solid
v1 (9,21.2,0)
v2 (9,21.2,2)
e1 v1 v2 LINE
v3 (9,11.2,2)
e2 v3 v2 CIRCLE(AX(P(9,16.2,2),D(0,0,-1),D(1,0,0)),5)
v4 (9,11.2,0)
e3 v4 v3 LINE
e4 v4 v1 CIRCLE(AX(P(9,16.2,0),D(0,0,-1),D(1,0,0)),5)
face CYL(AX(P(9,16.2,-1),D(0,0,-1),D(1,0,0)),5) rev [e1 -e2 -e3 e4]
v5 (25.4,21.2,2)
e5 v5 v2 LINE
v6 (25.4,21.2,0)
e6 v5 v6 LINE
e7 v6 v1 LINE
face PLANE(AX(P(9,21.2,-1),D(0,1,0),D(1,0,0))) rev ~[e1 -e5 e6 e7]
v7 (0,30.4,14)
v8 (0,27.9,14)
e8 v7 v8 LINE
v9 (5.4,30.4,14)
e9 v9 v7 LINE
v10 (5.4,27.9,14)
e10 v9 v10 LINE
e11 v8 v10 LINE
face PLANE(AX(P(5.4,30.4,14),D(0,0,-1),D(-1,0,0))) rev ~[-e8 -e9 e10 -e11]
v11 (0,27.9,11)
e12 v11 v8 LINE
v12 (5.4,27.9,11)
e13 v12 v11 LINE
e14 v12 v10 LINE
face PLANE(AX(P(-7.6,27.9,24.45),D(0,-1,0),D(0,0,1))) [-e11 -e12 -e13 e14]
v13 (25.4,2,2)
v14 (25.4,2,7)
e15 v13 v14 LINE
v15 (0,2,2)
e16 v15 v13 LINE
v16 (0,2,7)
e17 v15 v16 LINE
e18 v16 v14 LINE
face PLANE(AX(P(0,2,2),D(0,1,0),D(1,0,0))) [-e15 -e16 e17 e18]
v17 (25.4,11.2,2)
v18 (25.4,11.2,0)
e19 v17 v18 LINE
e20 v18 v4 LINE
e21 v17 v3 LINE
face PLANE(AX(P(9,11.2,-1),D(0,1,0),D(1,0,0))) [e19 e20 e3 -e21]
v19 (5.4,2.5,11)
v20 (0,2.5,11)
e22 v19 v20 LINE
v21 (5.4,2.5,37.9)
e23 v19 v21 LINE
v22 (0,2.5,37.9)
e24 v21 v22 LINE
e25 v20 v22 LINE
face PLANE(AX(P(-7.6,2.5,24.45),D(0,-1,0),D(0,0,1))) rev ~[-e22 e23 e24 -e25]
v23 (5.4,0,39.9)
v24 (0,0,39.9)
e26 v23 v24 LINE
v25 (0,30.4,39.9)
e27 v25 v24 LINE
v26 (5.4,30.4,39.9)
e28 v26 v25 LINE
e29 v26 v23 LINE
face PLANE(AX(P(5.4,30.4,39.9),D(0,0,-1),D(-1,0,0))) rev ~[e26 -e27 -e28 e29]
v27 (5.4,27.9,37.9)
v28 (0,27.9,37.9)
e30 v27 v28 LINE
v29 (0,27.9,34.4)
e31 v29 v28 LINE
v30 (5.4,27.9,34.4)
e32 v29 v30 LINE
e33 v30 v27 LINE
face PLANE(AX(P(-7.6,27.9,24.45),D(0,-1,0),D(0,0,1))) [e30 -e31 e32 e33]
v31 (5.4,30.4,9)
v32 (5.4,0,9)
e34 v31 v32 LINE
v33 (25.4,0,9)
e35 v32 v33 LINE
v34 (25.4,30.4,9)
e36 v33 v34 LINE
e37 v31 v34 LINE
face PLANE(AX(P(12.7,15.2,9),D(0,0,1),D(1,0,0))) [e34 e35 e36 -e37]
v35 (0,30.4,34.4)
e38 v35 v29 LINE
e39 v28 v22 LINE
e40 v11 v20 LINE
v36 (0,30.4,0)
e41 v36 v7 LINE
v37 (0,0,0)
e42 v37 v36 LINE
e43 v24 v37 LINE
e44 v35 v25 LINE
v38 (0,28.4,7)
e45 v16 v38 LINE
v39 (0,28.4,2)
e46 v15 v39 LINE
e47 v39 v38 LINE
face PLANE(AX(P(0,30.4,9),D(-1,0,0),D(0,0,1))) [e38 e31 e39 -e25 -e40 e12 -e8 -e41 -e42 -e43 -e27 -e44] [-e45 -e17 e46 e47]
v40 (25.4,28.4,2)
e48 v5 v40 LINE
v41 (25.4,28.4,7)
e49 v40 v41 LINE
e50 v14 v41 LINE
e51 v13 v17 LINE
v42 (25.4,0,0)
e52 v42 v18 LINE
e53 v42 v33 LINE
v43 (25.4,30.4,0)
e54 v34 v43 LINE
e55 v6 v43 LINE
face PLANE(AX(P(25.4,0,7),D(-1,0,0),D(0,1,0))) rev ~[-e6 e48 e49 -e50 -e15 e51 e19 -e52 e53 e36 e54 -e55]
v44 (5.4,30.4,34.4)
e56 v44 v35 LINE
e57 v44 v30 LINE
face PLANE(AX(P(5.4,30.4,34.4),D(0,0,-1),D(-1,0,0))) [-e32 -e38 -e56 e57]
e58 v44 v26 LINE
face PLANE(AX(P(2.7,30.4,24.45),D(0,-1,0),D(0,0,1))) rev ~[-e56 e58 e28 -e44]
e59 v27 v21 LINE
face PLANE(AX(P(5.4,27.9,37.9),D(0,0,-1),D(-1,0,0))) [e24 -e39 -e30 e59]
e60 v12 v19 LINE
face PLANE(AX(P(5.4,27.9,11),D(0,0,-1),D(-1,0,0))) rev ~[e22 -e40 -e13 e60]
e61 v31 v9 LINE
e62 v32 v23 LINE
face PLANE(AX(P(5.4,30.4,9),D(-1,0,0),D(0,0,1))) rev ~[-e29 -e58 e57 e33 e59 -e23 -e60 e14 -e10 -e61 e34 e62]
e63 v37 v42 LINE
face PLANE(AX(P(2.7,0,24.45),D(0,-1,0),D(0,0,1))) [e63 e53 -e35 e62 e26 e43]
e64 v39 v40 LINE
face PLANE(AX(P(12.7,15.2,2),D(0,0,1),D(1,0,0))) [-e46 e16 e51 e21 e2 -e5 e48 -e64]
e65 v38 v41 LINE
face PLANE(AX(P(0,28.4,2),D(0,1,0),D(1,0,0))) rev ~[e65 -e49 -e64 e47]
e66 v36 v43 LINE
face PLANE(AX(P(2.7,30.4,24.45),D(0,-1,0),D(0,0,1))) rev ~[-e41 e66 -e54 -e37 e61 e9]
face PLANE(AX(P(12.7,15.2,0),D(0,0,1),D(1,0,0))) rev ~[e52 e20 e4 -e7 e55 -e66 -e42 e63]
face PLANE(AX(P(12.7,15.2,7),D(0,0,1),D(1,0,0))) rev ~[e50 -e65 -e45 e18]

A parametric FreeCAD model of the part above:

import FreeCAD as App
import Part
import Sketcher
from FreeCAD import Vector

doc = App.newDocument("Part")
body = doc.addObject("PartDesign::Body", "Body")

# Sketch on XY plane
sketch1 = doc.addObject("Sketcher::SketchObject", "Sketch")
body.addObject(sketch1)
sketch1.AttachmentSupport = (doc.XY_Plane, [""])
sketch1.MapMode = "FlatFace"
sketch1.addGeometry(Part.LineSegment(Vector(5, 25, 0), Vector(5, 0, 0)), False)
sketch1.addGeometry(Part.LineSegment(Vector(5, 0, 0), Vector(25, 0, 0)), False)
sketch1.addGeometry(Part.LineSegment(Vector(25, 0, 0), Vector(25, 25, 0)), False)
sketch1.addGeometry(Part.LineSegment(Vector(25, 25, 0), Vector(5, 25, 0)), False)
sketch1.addConstraint(Sketcher.Constraint("Coincident", 0, 2, 1, 1))
sketch1.addConstraint(Sketcher.Constraint("Coincident", 1, 2, 2, 1))
sketch1.addConstraint(Sketcher.Constraint("Coincident", 2, 2, 3, 1))
sketch1.addConstraint(Sketcher.Constraint("Coincident", 3, 2, 0, 1))
sketch1.addConstraint(Sketcher.Constraint("Vertical", 0))
sketch1.addConstraint(Sketcher.Constraint("Horizontal", 1))
sketch1.addConstraint(Sketcher.Constraint("Vertical", 2))
sketch1.addConstraint(Sketcher.Constraint("Horizontal", 3))
sketch1.addConstraint(Sketcher.Constraint("PointOnObject", 0, 2, -1))
sketch1.addConstraint(Sketcher.Constraint("DistanceX", 1, 1, 1, 2, 20.4))
sketch1.addConstraint(Sketcher.Constraint("DistanceY", 0, 2, 0, 1, 25.4))
sketch1.addConstraint(Sketcher.Constraint("DistanceX", -1, 1, 0, 2, 5.0))
pad1 = doc.addObject("PartDesign::Pad", "Pad")
body.addObject(pad1)
pad1.Profile = sketch1
pad1.Length = 10
body2 = doc.addObject("PartDesign::Body", "Body001")

# Sketch on XY plane
sketch2 = doc.addObject("Sketcher::SketchObject", "Sketch001")
body2.addObject(sketch2)
sketch2.AttachmentSupport = (doc.getObject("XY_Plane001"), [""])
sketch2.MapMode = "FlatFace"
sketch2.AttachmentOffset = App.Placement(Vector(0, 0, 2.5), App.Rotation())
sketch2.addGeometry(Part.LineSegment(Vector(2, 26, 0), Vector(2, 0, 0)), False)
sketch2.addGeometry(Part.LineSegment(Vector(2, 0, 0), Vector(29, 0, 0)), False)
sketch2.addGeometry(Part.LineSegment(Vector(29, 0, 0), Vector(29, 26, 0)), False)
sketch2.addGeometry(Part.LineSegment(Vector(29, 26, 0), Vector(2, 26, 0)), False)
sketch2.addConstraint(Sketcher.Constraint("Coincident", 0, 2, 1, 1))
sketch2.addConstraint(Sketcher.Constraint("Coincident", 1, 2, 2, 1))
sketch2.addConstraint(Sketcher.Constraint("Coincident", 2, 2, 3, 1))
sketch2.addConstraint(Sketcher.Constraint("Coincident", 3, 2, 0, 1))
sketch2.addConstraint(Sketcher.Constraint("Vertical", 0))
sketch2.addConstraint(Sketcher.Constraint("Horizontal", 1))
sketch2.addConstraint(Sketcher.Constraint("Vertical", 2))
sketch2.addConstraint(Sketcher.Constraint("Horizontal", 3))
sketch2.addConstraint(Sketcher.Constraint("PointOnObject", 0, 2, -1))
sketch2.addConstraint(Sketcher.Constraint("DistanceY", 0, 2, 0, 1, 26.0))
sketch2.addConstraint(Sketcher.Constraint("DistanceX", 1, 1, 1, 2, 26.9))
sketch2.addConstraint(Sketcher.Constraint("DistanceX", -1, 1, 0, 2, 2.0))
pad2 = doc.addObject("PartDesign::Pad", "Pad001")
body2.addObject(pad2)
pad2.Profile = sketch2
pad2.Length = 25.4
body3 = doc.addObject("PartDesign::Body", "Body002")

# Sketch on XY plane
sketch3 = doc.addObject("Sketcher::SketchObject", "Sketch002")
body3.addObject(sketch3)
sketch3.AttachmentSupport = (doc.getObject("XY_Plane002"), [""])
sketch3.MapMode = "FlatFace"
sketch3.addGeometry(Part.LineSegment(Vector(0, 5, 0), Vector(0, 0, 0)), False)
sketch3.addGeometry(Part.LineSegment(Vector(0, 0, 0), Vector(31, 0, 0)), False)
sketch3.addGeometry(Part.LineSegment(Vector(31, 0, 0), Vector(31, 5, 0)), False)
sketch3.addGeometry(Part.LineSegment(Vector(31, 5, 0), Vector(0, 5, 0)), False)
sketch3.addConstraint(Sketcher.Constraint("Coincident", 0, 2, 1, 1))
sketch3.addConstraint(Sketcher.Constraint("Coincident", 1, 2, 2, 1))
sketch3.addConstraint(Sketcher.Constraint("Coincident", 2, 2, 3, 1))
sketch3.addConstraint(Sketcher.Constraint("Coincident", 3, 2, 0, 1))
sketch3.addConstraint(Sketcher.Constraint("Vertical", 0))
sketch3.addConstraint(Sketcher.Constraint("Horizontal", 1))
sketch3.addConstraint(Sketcher.Constraint("Vertical", 2))
sketch3.addConstraint(Sketcher.Constraint("Horizontal", 3))
sketch3.addConstraint(Sketcher.Constraint("Coincident", 0, 2, -1, 1))
sketch3.addConstraint(Sketcher.Constraint("DistanceX", 1, 1, 1, 2, 30.9))
sketch3.addConstraint(Sketcher.Constraint("DistanceY", 0, 2, 0, 1, 5.4))
pad3 = doc.addObject("PartDesign::Pad", "Pad002")
body3.addObject(pad3)
pad3.Profile = sketch3
pad3.Length = 30.4
doc.recompute()

boolean = doc.addObject("PartDesign::Boolean", "Boolean")
body3.addObject(boolean)
boolean.Type = "Cut"
boolean.addObjects([body2])
doc.recompute()

boolean2 = doc.addObject("PartDesign::Boolean", "Boolean001")
body3.addObject(boolean2)
boolean2.Type = "Cut"
boolean2.addObjects([body])
body4 = doc.addObject("PartDesign::Body", "Body003")
doc.recompute()

body3.Placement = App.Placement(Vector(0, 0, 0), App.Rotation(Vector(0, 1, 0), 270))
boolean3 = doc.addObject("PartDesign::Boolean", "Boolean002")
body4.addObject(boolean3)
boolean3.Type = "Fuse"
boolean3.addObjects([body3])
body5 = doc.addObject("PartDesign::Body", "Body004")
doc.recompute()

body4.Placement = App.Placement(Vector(5.4, 30.4, 9), App.Rotation(Vector(0, 0, 1), 90))
boolean4 = doc.addObject("PartDesign::Boolean", "Boolean003")
body5.addObject(boolean4)
boolean4.Type = "Fuse"
boolean4.addObjects([body4])
body6 = doc.addObject("PartDesign::Body", "Body005")

# Sketch on XY plane
sketch4 = doc.addObject("Sketcher::SketchObject", "Sketch003")
body6.addObject(sketch4)
sketch4.AttachmentSupport = (doc.getObject("XY_Plane005"), [""])
sketch4.MapMode = "FlatFace"
sketch4.AttachmentOffset = App.Placement(Vector(0, 0, 7), App.Rotation())
sketch4.addGeometry(Part.LineSegment(Vector(0, 30, 0), Vector(0, 0, 0)), False)
sketch4.addGeometry(Part.LineSegment(Vector(0, 0, 0), Vector(25, 0, 0)), False)
sketch4.addGeometry(Part.LineSegment(Vector(25, 0, 0), Vector(25, 30, 0)), False)
sketch4.addGeometry(Part.LineSegment(Vector(25, 30, 0), Vector(0, 30, 0)), False)
sketch4.addConstraint(Sketcher.Constraint("Coincident", 0, 2, 1, 1))
sketch4.addConstraint(Sketcher.Constraint("Coincident", 1, 2, 2, 1))
sketch4.addConstraint(Sketcher.Constraint("Coincident", 2, 2, 3, 1))
sketch4.addConstraint(Sketcher.Constraint("Coincident", 3, 2, 0, 1))
sketch4.addConstraint(Sketcher.Constraint("Vertical", 0))
sketch4.addConstraint(Sketcher.Constraint("Horizontal", 1))
sketch4.addConstraint(Sketcher.Constraint("Vertical", 2))
sketch4.addConstraint(Sketcher.Constraint("Horizontal", 3))
sketch4.addConstraint(Sketcher.Constraint("Coincident", 0, 2, -1, 1))
sketch4.addConstraint(Sketcher.Constraint("DistanceX", 1, 1, 1, 2, 25.4))
sketch4.addConstraint(Sketcher.Constraint("DistanceY", 0, 2, 0, 1, 30.4))
pad4 = doc.addObject("PartDesign::Pad", "Pad003")
body6.addObject(pad4)
pad4.Profile = sketch4
pad4.Length = 2
body7 = doc.addObject("PartDesign::Body", "Body006")

# Sketch on XY plane
sketch5 = doc.addObject("Sketcher::SketchObject", "Sketch004")
body7.addObject(sketch5)
sketch5.AttachmentSupport = (doc.getObject("XY_Plane006"), [""])
sketch5.MapMode = "FlatFace"
sketch5.AttachmentOffset = App.Placement(Vector(0, 0, 2), App.Rotation())
sketch5.addGeometry(Part.LineSegment(Vector(0, 30.4, 0), Vector(0, 28.4, 0)), False)
sketch5.addGeometry(Part.LineSegment(Vector(0, 28.4, 0), Vector(25.4, 28.4, 0)), False)
sketch5.addGeometry(Part.LineSegment(Vector(25.4, 28.4, 0), Vector(25.4, 30.4, 0)), False)
sketch5.addGeometry(Part.LineSegment(Vector(25.4, 30.4, 0), Vector(0, 30.4, 0)), False)
sketch5.addConstraint(Sketcher.Constraint("Coincident", 0, 2, 1, 1))
sketch5.addConstraint(Sketcher.Constraint("Coincident", 1, 2, 2, 1))
sketch5.addConstraint(Sketcher.Constraint("Coincident", 2, 2, 3, 1))
sketch5.addConstraint(Sketcher.Constraint("Coincident", 3, 2, 0, 1))
sketch5.addConstraint(Sketcher.Constraint("Vertical", 0))
sketch5.addConstraint(Sketcher.Constraint("Horizontal", 1))
sketch5.addConstraint(Sketcher.Constraint("Vertical", 2))
sketch5.addConstraint(Sketcher.Constraint("Horizontal", 3))
sketch5.addConstraint(Sketcher.Constraint("PointOnObject", 0, 2, -2))
sketch5.addConstraint(Sketcher.Constraint("DistanceY", 0, 2, 0, 1, 2.0))
sketch5.addConstraint(Sketcher.Constraint("DistanceX", 1, 1, 1, 2, 25.4))
sketch5.addConstraint(Sketcher.Constraint("DistanceY", -1, 1, 0, 2, 28.4))
pad5 = doc.addObject("PartDesign::Pad", "Pad004")
body7.addObject(pad5)
pad5.Profile = sketch5
pad5.Length = 5
body8 = doc.addObject("PartDesign::Body", "Body007")

# Sketch on XY plane
sketch6 = doc.addObject("Sketcher::SketchObject", "Sketch005")
body8.addObject(sketch6)
sketch6.AttachmentSupport = (doc.getObject("XY_Plane007"), [""])
sketch6.MapMode = "FlatFace"
sketch6.AttachmentOffset = App.Placement(Vector(0, 0, 2), App.Rotation())
sketch6.addGeometry(Part.LineSegment(Vector(0, 2, 0), Vector(0, 0, 0)), False)
sketch6.addGeometry(Part.LineSegment(Vector(0, 0, 0), Vector(25.4, 0, 0)), False)
sketch6.addGeometry(Part.LineSegment(Vector(25.4, 0, 0), Vector(25.4, 2, 0)), False)
sketch6.addGeometry(Part.LineSegment(Vector(25.4, 2, 0), Vector(0, 2, 0)), False)
sketch6.addConstraint(Sketcher.Constraint("Coincident", 0, 2, 1, 1))
sketch6.addConstraint(Sketcher.Constraint("Coincident", 1, 2, 2, 1))
sketch6.addConstraint(Sketcher.Constraint("Coincident", 2, 2, 3, 1))
sketch6.addConstraint(Sketcher.Constraint("Coincident", 3, 2, 0, 1))
sketch6.addConstraint(Sketcher.Constraint("Vertical", 0))
sketch6.addConstraint(Sketcher.Constraint("Horizontal", 1))
sketch6.addConstraint(Sketcher.Constraint("Vertical", 2))
sketch6.addConstraint(Sketcher.Constraint("Horizontal", 3))
sketch6.addConstraint(Sketcher.Constraint("Coincident", 0, 2, -1, 1))
sketch6.addConstraint(Sketcher.Constraint("DistanceY", 0, 2, 0, 1, 2.0))
sketch6.addConstraint(Sketcher.Constraint("DistanceX", 1, 1, 1, 2, 25.4))
pad6 = doc.addObject("PartDesign::Pad", "Pad005")
body8.addObject(pad6)
pad6.Profile = sketch6
pad6.Length = 5
body9 = doc.addObject("PartDesign::Body", "Body008")

# Sketch on XY plane
sketch7 = doc.addObject("Sketcher::SketchObject", "Sketch006")
body9.addObject(sketch7)
sketch7.AttachmentSupport = (doc.getObject("XY_Plane008"), [""])
sketch7.MapMode = "FlatFace"
sketch7.AttachmentOffset = App.Placement(Vector(0, 0, 9), App.Rotation())
sketch7.addGeometry(Part.LineSegment(Vector(9, 21, 0), Vector(9, 11, 0)), False)
sketch7.addGeometry(Part.LineSegment(Vector(9, 11, 0), Vector(26, 11, 0)), False)
sketch7.addGeometry(Part.LineSegment(Vector(26, 11, 0), Vector(26, 21, 0)), False)
sketch7.addGeometry(Part.LineSegment(Vector(26, 21, 0), Vector(9, 21, 0)), False)
sketch7.addConstraint(Sketcher.Constraint("Coincident", 0, 2, 1, 1))
sketch7.addConstraint(Sketcher.Constraint("Coincident", 1, 2, 2, 1))
sketch7.addConstraint(Sketcher.Constraint("Coincident", 2, 2, 3, 1))
sketch7.addConstraint(Sketcher.Constraint("Coincident", 3, 2, 0, 1))
sketch7.addConstraint(Sketcher.Constraint("Vertical", 0))
sketch7.addConstraint(Sketcher.Constraint("Horizontal", 1))
sketch7.addConstraint(Sketcher.Constraint("Vertical", 2))
sketch7.addConstraint(Sketcher.Constraint("Horizontal", 3))
sketch7.addConstraint(Sketcher.Constraint("DistanceX", 1, 1, 1, 2, 17.0))
sketch7.addConstraint(Sketcher.Constraint("DistanceY", 0, 2, 0, 1, 10.0))
sketch7.addConstraint(Sketcher.Constraint("DistanceX", -1, 1, 0, 2, 9.0))
sketch7.addConstraint(Sketcher.Constraint("DistanceY", -1, 1, 0, 2, 11.2))
pad7 = doc.addObject("PartDesign::Pad", "Pad006")
body9.addObject(pad7)
pad7.Profile = sketch7
pad7.Length = 4
body10 = doc.addObject("PartDesign::Body", "Body009")

# Sketch on XY plane
sketch8 = doc.addObject("Sketcher::SketchObject", "Sketch007")
body10.addObject(sketch8)
sketch8.AttachmentSupport = (doc.getObject("XY_Plane009"), [""])
sketch8.MapMode = "FlatFace"
sketch8.AttachmentOffset = App.Placement(Vector(0, 0, 9), App.Rotation())
sketch8.addGeometry(Part.Circle(Vector(9, 16, 0), Vector(0, 0, 1), 5), False)
sketch8.addConstraint(Sketcher.Constraint("Diameter", 0, 10.0))
sketch8.addConstraint(Sketcher.Constraint("DistanceX", -1, 1, 0, 3, 9.0))
sketch8.addConstraint(Sketcher.Constraint("DistanceY", -1, 1, 0, 3, 16.2))
pad8 = doc.addObject("PartDesign::Pad", "Pad007")
body10.addObject(pad8)
pad8.Profile = sketch8
pad8.Length = 4
body11 = doc.addObject("PartDesign::Body", "Body010")

# Sketch on XY plane
sketch9 = doc.addObject("Sketcher::SketchObject", "Sketch008")
body11.addObject(sketch9)
sketch9.AttachmentSupport = (doc.getObject("XY_Plane010"), [""])
sketch9.MapMode = "FlatFace"
sketch9.AttachmentOffset = App.Placement(Vector(0, 0, 10), App.Rotation())
sketch9.addGeometry(Part.LineSegment(Vector(0, 30, 0), Vector(0, 0, 0)), False)
sketch9.addGeometry(Part.LineSegment(Vector(0, 0, 0), Vector(25, 0, 0)), False)
sketch9.addGeometry(Part.LineSegment(Vector(25, 0, 0), Vector(25, 30, 0)), False)
sketch9.addGeometry(Part.LineSegment(Vector(25, 30, 0), Vector(0, 30, 0)), False)
sketch9.addConstraint(Sketcher.Constraint("Coincident", 0, 2, 1, 1))
sketch9.addConstraint(Sketcher.Constraint("Coincident", 1, 2, 2, 1))
sketch9.addConstraint(Sketcher.Constraint("Coincident", 2, 2, 3, 1))
sketch9.addConstraint(Sketcher.Constraint("Coincident", 3, 2, 0, 1))
sketch9.addConstraint(Sketcher.Constraint("Vertical", 0))
sketch9.addConstraint(Sketcher.Constraint("Horizontal", 1))
sketch9.addConstraint(Sketcher.Constraint("Vertical", 2))
sketch9.addConstraint(Sketcher.Constraint("Horizontal", 3))
sketch9.addConstraint(Sketcher.Constraint("Coincident", 0, 2, -1, 1))
sketch9.addConstraint(Sketcher.Constraint("DistanceX", 1, 1, 1, 2, 25.4))
sketch9.addConstraint(Sketcher.Constraint("DistanceY", 0, 2, 0, 1, 30.4))
pad9 = doc.addObject("PartDesign::Pad", "Pad008")
body11.addObject(pad9)
pad9.Profile = sketch9
pad9.Length = 2
doc.recompute()

boolean5 = doc.addObject("PartDesign::Boolean", "Boolean004")
body11.addObject(boolean5)
boolean5.Type = "Cut"
boolean5.addObjects([body10])
doc.recompute()

boolean6 = doc.addObject("PartDesign::Boolean", "Boolean005")
body11.addObject(boolean6)
boolean6.Type = "Cut"
boolean6.addObjects([body9])
body12 = doc.addObject("PartDesign::Body", "Body011")
doc.recompute()

body11.Placement = App.Placement(Vector(0, 0, -10), App.Rotation(Vector(0, 0, 1), 0))
boolean7 = doc.addObject("PartDesign::Boolean", "Boolean006")
body12.addObject(boolean7)
boolean7.Type = "Fuse"
boolean7.addObjects([body11])
doc.recompute()

boolean8 = doc.addObject("PartDesign::Boolean", "Boolean007")
body12.addObject(boolean8)
boolean8.Type = "Fuse"
boolean8.addObjects([body8])
doc.recompute()

boolean9 = doc.addObject("PartDesign::Boolean", "Boolean008")
body12.addObject(boolean9)
boolean9.Type = "Fuse"
boolean9.addObjects([body7])
doc.recompute()

boolean10 = doc.addObject("PartDesign::Boolean", "Boolean009")
body12.addObject(boolean10)
boolean10.Type = "Fuse"
boolean10.addObjects([body6])
doc.recompute()

boolean11 = doc.addObject("PartDesign::Boolean", "Boolean010")
body12.addObject(boolean11)
boolean11.Type = "Fuse"
boolean11.addObjects([body5])

doc.recompute()
